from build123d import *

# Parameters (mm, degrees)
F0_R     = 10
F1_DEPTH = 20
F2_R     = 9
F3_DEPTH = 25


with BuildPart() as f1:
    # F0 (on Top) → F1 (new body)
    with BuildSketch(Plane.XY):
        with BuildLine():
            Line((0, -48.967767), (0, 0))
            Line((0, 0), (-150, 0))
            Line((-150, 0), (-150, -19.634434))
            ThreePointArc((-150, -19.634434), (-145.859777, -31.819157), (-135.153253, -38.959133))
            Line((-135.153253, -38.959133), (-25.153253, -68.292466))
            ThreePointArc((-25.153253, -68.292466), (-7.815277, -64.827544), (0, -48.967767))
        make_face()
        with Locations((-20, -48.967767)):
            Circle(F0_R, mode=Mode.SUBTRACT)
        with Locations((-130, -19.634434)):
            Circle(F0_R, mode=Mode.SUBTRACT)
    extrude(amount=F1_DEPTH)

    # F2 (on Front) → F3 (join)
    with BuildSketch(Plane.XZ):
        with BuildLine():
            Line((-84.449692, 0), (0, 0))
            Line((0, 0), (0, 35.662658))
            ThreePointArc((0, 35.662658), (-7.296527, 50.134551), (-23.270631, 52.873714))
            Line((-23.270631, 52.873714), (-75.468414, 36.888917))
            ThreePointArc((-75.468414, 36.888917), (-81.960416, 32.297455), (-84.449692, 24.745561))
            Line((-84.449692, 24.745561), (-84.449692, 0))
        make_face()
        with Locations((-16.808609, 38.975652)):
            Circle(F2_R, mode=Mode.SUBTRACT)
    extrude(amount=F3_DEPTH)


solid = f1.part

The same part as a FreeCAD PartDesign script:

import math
import FreeCAD as App
import Part
import Sketcher
Q = App.Units.Quantity

doc = App.newDocument("Part")
body = doc.addObject("PartDesign::Body", "Body")

# Sketch on XY plane
sketch1 = doc.addObject("Sketcher::SketchObject", "Sketch")
body.addObject(sketch1)
sketch1.AttachmentSupport = (doc.XY_Plane, [""])
sketch1.MapMode = "FlatFace"
sketch1.addGeometry(Part.LineSegment(App.Vector(0, -49, 0), App.Vector(0, 0, 0)), False)
sketch1.addGeometry(Part.LineSegment(App.Vector(0, 0, 0), App.Vector(-150, 0, 0)), False)
sketch1.addGeometry(Part.LineSegment(App.Vector(-150, 0, 0), App.Vector(-150, -20, 0)), False)
sketch1.addGeometry(Part.ArcOfCircle(Part.Circle(App.Vector(-130, -20, 0), App.Vector(0, 0, 1), 20), math.radians(-180), math.radians(-105)), False)
sketch1.addGeometry(Part.LineSegment(App.Vector(-135, -39, 0), App.Vector(-25, -68, 0)), False)
sketch1.addGeometry(Part.ArcOfCircle(Part.Circle(App.Vector(-20, -49, 0), App.Vector(0, 0, 1), 20), math.radians(-105), math.radians(0)), False)
sketch1.addGeometry(Part.Circle(App.Vector(-20, -49, 0), App.Vector(0, 0, 1), 10), False)
sketch1.addGeometry(Part.Circle(App.Vector(-130, -20, 0), App.Vector(0, 0, 1), 10), False)
sketch1.addConstraint(Sketcher.Constraint("Coincident", 0, 2, 1, 1))
sketch1.addConstraint(Sketcher.Constraint("Coincident", 1, 2, 2, 1))
sketch1.addConstraint(Sketcher.Constraint("Tangent", 2, 2, 3, 1))
sketch1.addConstraint(Sketcher.Constraint("Tangent", 3, 2, 4, 1))
sketch1.addConstraint(Sketcher.Constraint("Tangent", 4, 2, 5, 1))
sketch1.addConstraint(Sketcher.Constraint("Tangent", 5, 2, 0, 1))
sketch1.addConstraint(Sketcher.Constraint("Vertical", 0))
sketch1.addConstraint(Sketcher.Constraint("Horizontal", 1))
sketch1.addConstraint(Sketcher.Constraint("Vertical", 2))
sketch1.addConstraint(Sketcher.Constraint("Coincident", 0, 2, -1, 1))
sketch1.addConstraint(Sketcher.Constraint("Coincident", 6, 3, 5, 3))
sketch1.addConstraint(Sketcher.Constraint("Coincident", 7, 3, 3, 3))
sketch1.addConstraint(Sketcher.Constraint("Equal", 3, 5))
sketch1.addConstraint(Sketcher.Constraint("Equal", 6, 7))
sketch1.addConstraint(Sketcher.Constraint("Diameter", 6, Q("20 mm")))
sketch1.addConstraint(Sketcher.Constraint("Radius", 3, Q("20 mm")))
sketch1.addConstraint(Sketcher.Constraint("DistanceX", 1, 2, 1, 1, Q("150 mm")))
sketch1.addConstraint(Sketcher.Constraint("DistanceY", 3, 2, 7, 3, Q("19.324699 mm")))
sketch1.addConstraint(Sketcher.Constraint("DistanceY", 0, 1, 0, 2, Q("48.967767 mm")))
pad1 = doc.addObject("PartDesign::Pad", "Pad")
body.addObject(pad1)
pad1.Profile = sketch1
pad1.Length = 20

# Sketch on XZ plane
sketch2 = doc.addObject("Sketcher::SketchObject", "Sketch001")
body.addObject(sketch2)
sketch2.AttachmentSupport = (doc.XZ_Plane, [""])
sketch2.MapMode = "FlatFace"
sketch2.addGeometry(Part.LineSegment(App.Vector(-84, 0, 0), App.Vector(0, 0, 0)), False)
sketch2.addGeometry(Part.LineSegment(App.Vector(0, 0, 0), App.Vector(0, 36, 0)), False)
sketch2.addGeometry(Part.ArcOfCircle(Part.Circle(App.Vector(-18, 36, 0), App.Vector(0, 0, 1), 18), math.radians(0), math.radians(107)), False)
sketch2.addGeometry(Part.LineSegment(App.Vector(-23, 53, 0), App.Vector(-75, 37, 0)), False)
sketch2.addGeometry(Part.ArcOfCircle(Part.Circle(App.Vector(-72, 25, 0), App.Vector(0, 0, 1), 13), math.radians(107), math.radians(180)), False)
sketch2.addGeometry(Part.LineSegment(App.Vector(-84, 25, 0), App.Vector(-84, 0, 0)), False)
sketch2.addGeometry(Part.Circle(App.Vector(-17, 39, 0), App.Vector(0, 0, 1), 9), False)
sketch2.addConstraint(Sketcher.Constraint("Coincident", 0, 2, 1, 1))
sketch2.addConstraint(Sketcher.Constraint("Tangent", 1, 2, 2, 1))
sketch2.addConstraint(Sketcher.Constraint("Tangent", 2, 2, 3, 1))
sketch2.addConstraint(Sketcher.Constraint("Tangent", 3, 2, 4, 1))
sketch2.addConstraint(Sketcher.Constraint("Tangent", 4, 2, 5, 1))
sketch2.addConstraint(Sketcher.Constraint("Coincident", 5, 2, 0, 1))
sketch2.addConstraint(Sketcher.Constraint("Horizontal", 0))
sketch2.addConstraint(Sketcher.Constraint("Vertical", 1))
sketch2.addConstraint(Sketcher.Constraint("Vertical", 5))
sketch2.addConstraint(Sketcher.Constraint("Coincident", 0, 2, -1, 1))
sketch2.addConstraint(Sketcher.Constraint("Diameter", 6, Q("18 mm")))
sketch2.addConstraint(Sketcher.Constraint("Radius", 2, Q("17.999999 mm")))
sketch2.addConstraint(Sketcher.Constraint("Radius", 4, Q("12.700001 mm")))
sketch2.addConstraint(Sketcher.Constraint("DistanceX", 0, 1, 0, 2, Q("84.449692 mm")))
sketch2.addConstraint(Sketcher.Constraint("DistanceY", 5, 2, 5, 1, Q("24.745561 mm")))
sketch2.addConstraint(Sketcher.Constraint("DistanceY", 4, 3, 2, 3, Q("10.917099 mm")))
sketch2.addConstraint(Sketcher.Constraint("DistanceX", 6, 3, -1, 1, Q("16.808609 mm")))
sketch2.addConstraint(Sketcher.Constraint("DistanceY", -1, 1, 6, 3, Q("38.975652 mm")))
pad2 = doc.addObject("PartDesign::Pad", "Pad001")
body.addObject(pad2)
pad2.Profile = sketch2
pad2.Length = 25

doc.recompute()
